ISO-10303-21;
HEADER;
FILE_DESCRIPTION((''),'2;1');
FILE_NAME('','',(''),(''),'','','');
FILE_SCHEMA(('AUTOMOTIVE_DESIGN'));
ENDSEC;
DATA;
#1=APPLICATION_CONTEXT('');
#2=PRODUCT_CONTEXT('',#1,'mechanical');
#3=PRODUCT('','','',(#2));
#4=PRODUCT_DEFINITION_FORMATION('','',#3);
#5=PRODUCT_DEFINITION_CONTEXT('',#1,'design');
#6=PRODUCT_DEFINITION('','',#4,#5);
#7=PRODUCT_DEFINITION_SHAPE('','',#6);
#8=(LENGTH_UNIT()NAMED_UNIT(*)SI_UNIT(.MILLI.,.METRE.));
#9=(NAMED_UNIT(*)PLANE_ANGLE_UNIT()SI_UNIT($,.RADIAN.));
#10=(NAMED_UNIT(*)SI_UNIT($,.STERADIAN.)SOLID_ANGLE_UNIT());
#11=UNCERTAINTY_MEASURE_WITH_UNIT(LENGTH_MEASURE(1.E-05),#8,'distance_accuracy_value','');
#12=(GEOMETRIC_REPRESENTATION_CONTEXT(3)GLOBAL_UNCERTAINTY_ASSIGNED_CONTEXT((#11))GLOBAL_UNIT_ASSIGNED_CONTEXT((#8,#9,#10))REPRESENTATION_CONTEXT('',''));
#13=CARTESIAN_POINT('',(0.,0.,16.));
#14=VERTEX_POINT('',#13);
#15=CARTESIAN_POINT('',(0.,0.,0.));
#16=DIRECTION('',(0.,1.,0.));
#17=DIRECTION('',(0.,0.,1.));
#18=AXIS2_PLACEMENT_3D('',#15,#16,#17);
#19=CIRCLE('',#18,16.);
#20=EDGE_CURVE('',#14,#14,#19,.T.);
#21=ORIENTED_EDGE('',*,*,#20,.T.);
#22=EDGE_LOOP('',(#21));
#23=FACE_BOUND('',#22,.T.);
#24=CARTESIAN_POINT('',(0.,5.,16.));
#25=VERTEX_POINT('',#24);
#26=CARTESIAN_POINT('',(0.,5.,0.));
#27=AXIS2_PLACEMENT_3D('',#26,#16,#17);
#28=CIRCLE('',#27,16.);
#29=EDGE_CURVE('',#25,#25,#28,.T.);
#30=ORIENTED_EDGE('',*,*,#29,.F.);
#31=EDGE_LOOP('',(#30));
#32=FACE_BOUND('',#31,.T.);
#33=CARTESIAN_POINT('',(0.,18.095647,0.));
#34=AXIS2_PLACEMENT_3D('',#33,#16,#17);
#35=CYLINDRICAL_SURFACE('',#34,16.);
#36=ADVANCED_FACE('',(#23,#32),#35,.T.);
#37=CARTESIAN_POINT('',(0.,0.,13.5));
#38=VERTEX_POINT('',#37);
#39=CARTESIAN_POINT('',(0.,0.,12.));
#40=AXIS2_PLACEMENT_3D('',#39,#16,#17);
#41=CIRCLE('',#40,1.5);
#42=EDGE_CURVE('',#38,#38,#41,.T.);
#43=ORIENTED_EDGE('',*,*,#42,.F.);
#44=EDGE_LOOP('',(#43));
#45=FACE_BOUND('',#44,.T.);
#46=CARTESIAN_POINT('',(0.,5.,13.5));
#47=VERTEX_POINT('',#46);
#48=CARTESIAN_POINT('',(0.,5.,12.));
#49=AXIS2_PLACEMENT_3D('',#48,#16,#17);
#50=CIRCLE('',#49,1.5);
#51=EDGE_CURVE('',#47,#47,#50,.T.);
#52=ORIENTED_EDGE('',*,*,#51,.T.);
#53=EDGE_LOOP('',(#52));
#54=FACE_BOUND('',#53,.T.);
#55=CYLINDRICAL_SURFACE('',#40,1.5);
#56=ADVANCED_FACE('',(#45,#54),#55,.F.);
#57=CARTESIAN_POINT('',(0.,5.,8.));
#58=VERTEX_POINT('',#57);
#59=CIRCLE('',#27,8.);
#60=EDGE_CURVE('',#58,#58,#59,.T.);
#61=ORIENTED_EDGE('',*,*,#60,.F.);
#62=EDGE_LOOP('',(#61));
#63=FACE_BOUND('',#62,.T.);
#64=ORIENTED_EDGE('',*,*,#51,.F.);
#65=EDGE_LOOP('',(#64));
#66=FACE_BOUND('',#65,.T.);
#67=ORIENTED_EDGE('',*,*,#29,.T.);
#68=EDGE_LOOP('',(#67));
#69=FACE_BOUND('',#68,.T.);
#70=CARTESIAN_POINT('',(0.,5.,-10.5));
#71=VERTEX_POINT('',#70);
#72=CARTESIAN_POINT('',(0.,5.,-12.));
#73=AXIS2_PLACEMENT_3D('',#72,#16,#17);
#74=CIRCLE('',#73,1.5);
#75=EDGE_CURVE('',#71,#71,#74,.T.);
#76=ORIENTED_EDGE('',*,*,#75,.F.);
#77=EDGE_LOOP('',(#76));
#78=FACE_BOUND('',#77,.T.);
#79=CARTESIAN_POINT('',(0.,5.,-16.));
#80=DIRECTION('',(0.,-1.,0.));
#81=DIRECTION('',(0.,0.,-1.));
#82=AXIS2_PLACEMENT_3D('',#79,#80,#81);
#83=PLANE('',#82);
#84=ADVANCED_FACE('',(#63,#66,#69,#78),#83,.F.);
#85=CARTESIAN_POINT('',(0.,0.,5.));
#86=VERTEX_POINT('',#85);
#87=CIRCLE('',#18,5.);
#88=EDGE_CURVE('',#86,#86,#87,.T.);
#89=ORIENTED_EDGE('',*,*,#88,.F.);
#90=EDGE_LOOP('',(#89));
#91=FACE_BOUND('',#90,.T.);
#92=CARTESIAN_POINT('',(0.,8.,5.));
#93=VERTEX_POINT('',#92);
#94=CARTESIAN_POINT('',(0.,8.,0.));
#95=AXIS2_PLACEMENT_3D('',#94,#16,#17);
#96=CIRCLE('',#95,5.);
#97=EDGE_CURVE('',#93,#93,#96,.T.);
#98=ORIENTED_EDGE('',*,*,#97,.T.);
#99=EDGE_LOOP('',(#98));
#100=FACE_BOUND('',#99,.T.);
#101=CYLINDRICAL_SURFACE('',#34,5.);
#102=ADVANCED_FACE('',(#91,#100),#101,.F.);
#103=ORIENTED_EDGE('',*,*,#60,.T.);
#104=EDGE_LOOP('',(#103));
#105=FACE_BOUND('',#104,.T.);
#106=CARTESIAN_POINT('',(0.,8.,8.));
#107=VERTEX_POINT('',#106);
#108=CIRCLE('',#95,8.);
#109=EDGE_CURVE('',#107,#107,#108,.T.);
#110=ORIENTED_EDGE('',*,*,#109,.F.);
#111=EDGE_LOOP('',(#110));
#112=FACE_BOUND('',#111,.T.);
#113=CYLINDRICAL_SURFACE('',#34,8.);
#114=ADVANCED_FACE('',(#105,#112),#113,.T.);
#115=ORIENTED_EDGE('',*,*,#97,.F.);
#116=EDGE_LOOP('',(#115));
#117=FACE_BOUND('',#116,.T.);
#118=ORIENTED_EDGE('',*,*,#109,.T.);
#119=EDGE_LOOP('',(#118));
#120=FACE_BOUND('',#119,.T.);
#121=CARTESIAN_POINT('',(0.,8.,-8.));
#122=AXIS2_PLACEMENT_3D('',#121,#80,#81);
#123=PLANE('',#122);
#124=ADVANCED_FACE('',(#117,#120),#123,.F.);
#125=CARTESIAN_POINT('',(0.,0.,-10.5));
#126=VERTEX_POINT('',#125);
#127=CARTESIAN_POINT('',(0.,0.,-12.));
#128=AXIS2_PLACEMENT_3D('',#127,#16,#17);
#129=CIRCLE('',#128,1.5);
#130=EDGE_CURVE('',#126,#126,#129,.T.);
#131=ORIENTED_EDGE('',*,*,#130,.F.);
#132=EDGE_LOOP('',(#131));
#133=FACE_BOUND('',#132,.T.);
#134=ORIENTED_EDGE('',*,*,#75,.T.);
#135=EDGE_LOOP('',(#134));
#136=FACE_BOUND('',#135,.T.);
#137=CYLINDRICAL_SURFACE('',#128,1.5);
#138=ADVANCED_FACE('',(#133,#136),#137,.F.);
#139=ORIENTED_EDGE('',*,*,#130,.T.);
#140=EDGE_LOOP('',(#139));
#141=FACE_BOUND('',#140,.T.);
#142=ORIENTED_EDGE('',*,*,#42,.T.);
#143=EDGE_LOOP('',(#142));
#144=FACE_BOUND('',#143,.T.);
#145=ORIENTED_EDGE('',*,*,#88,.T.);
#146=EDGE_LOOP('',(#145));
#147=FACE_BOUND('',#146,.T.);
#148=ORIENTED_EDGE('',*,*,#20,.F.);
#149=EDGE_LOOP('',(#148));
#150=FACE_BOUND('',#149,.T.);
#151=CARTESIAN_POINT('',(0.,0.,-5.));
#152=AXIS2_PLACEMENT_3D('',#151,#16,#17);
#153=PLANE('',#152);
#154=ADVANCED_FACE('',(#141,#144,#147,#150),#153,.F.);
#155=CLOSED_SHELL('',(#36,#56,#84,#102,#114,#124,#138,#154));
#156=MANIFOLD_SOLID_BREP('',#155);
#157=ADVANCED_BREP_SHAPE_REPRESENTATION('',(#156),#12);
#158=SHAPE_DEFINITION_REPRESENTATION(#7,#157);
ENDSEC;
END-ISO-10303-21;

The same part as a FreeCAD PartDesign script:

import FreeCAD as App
import Part
import Sketcher

V = App.Vector


def add_polygon(sketch, points):
    """Adds a closed chain of lines whose ends are joined by coincident constraints."""
    first, n = sketch.GeometryCount, len(points)
    for a, b in zip(points, points[1:] + points[:1]):
        sketch.addGeometry(Part.LineSegment(App.Vector(*a, 0), App.Vector(*b, 0)), False)
    for i in range(n):
        sketch.addConstraint(Sketcher.Constraint("Coincident", first + i, 2, first + (i + 1) % n, 1))

doc = App.newDocument("Part")
body = doc.addObject("PartDesign::Body", "Body")

# Sketch on YZ plane
sketch1 = body.newObject("Sketcher::SketchObject", "Sketch")
sketch1.AttachmentSupport = (doc.getObject("YZ_Plane"), [""])
sketch1.MapMode = "FlatFace"
add_polygon(sketch1, [(0, -5), (0, -16), (5, -16), (5, -8), (8, -8), (8, -5)])  # lines 0-5
sketch1.addConstraint([
    Sketcher.Constraint("Vertical", 0),
    Sketcher.Constraint("Horizontal", 1),
    Sketcher.Constraint("Vertical", 2),
    Sketcher.Constraint("Horizontal", 3),
    Sketcher.Constraint("Vertical", 4),
    Sketcher.Constraint("Horizontal", 5),
    Sketcher.Constraint("PointOnObject", 0, 2, -2),
    Sketcher.Constraint("Equal", 5, 2),
    Sketcher.Constraint("Equal", 3, 4),
    Sketcher.Constraint("DistanceX", 1, 1, 1, 2, 5.0),
    Sketcher.Constraint("DistanceX", 3, 1, 3, 2, 3.0),
    Sketcher.Constraint("DistanceY", 0, 2, -1, 1, 16.0),
])
revolution = body.newObject("PartDesign::Revolution", "Revolution")
revolution.Profile = sketch1
revolution.ReferenceAxis = (sketch1, ["H_Axis"])
revolution.Angle = 360

# Sketch on XZ plane
sketch2 = body.newObject("Sketcher::SketchObject", "Sketch001")
sketch2.AttachmentSupport = (doc.getObject("XZ_Plane"), [""])
sketch2.MapMode = "FlatFace"
sketch2.AttachmentOffset = App.Placement(V(0, 0, -5), App.Rotation())
sketch2.addGeometry(Part.Circle(V(0, -12, 0), V(0, 0, 1), 1.5), False)
sketch2.addConstraint([
    Sketcher.Constraint("PointOnObject", 0, 3, -2),
    Sketcher.Constraint("Diameter", 0, 3.0),
    Sketcher.Constraint("DistanceY", 0, 3, -1, 1, 12.0),
])
pocket1 = body.newObject("PartDesign::Pocket", "Pocket")
pocket1.Profile = sketch2
pocket1.Type = "ThroughAll"
pocket1.Reversed = True

# Sketch on XZ plane
sketch3 = body.newObject("Sketcher::SketchObject", "Sketch002")
sketch3.AttachmentSupport = (doc.getObject("XZ_Plane"), [""])
sketch3.MapMode = "FlatFace"
sketch3.AttachmentOffset = App.Placement(V(0, 0, -5), App.Rotation())
sketch3.addGeometry(Part.Circle(V(0, 12, 0), V(0, 0, 1), 1.5), False)
sketch3.addConstraint([
    Sketcher.Constraint("PointOnObject", 0, 3, -2),
    Sketcher.Constraint("Diameter", 0, 3.0),
    Sketcher.Constraint("DistanceY", -1, 1, 0, 3, 12.0),
])
pocket2 = body.newObject("PartDesign::Pocket", "Pocket001")
pocket2.Profile = sketch3
pocket2.Type = "ThroughAll"
pocket2.Reversed = True

doc.recompute()
